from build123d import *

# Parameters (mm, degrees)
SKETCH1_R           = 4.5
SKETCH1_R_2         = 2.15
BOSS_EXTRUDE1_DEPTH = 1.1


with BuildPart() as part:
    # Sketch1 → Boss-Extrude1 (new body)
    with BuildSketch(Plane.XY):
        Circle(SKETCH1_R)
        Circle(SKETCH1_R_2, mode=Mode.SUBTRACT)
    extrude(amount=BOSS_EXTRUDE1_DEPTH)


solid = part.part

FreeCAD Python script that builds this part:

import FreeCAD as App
import Part
import Sketcher
Q = App.Units.Quantity

doc = App.newDocument("Part")
body = doc.addObject("PartDesign::Body", "Body")

sketch1 = doc.addObject("Sketcher::SketchObject", "Sketch")
body.addObject(sketch1)
sketch1.AttachmentSupport = (doc.XY_Plane, [""])
sketch1.MapMode = "FlatFace"
sketch1.addGeometry(Part.Circle(App.Vector(0, 0, 0), App.Vector(0, 0, 1), 4.5), False)
sketch1.addGeometry(Part.Circle(App.Vector(0, 0, 0), App.Vector(0, 0, 1), 2.15), False)
sketch1.addConstraint(Sketcher.Constraint("Coincident", 0, 3, -1, 1))
sketch1.addConstraint(Sketcher.Constraint("Coincident", 1, 3, -1, 1))
sketch1.addConstraint(Sketcher.Constraint("Diameter", 0, Q("9 mm")))
sketch1.addConstraint(Sketcher.Constraint("Diameter", 1, Q("4.3 mm")))
pad1 = doc.addObject("PartDesign::Pad", "Pad")
body.addObject(pad1)
pad1.Profile = sketch1
pad1.Length = 1.1

doc.recompute()
